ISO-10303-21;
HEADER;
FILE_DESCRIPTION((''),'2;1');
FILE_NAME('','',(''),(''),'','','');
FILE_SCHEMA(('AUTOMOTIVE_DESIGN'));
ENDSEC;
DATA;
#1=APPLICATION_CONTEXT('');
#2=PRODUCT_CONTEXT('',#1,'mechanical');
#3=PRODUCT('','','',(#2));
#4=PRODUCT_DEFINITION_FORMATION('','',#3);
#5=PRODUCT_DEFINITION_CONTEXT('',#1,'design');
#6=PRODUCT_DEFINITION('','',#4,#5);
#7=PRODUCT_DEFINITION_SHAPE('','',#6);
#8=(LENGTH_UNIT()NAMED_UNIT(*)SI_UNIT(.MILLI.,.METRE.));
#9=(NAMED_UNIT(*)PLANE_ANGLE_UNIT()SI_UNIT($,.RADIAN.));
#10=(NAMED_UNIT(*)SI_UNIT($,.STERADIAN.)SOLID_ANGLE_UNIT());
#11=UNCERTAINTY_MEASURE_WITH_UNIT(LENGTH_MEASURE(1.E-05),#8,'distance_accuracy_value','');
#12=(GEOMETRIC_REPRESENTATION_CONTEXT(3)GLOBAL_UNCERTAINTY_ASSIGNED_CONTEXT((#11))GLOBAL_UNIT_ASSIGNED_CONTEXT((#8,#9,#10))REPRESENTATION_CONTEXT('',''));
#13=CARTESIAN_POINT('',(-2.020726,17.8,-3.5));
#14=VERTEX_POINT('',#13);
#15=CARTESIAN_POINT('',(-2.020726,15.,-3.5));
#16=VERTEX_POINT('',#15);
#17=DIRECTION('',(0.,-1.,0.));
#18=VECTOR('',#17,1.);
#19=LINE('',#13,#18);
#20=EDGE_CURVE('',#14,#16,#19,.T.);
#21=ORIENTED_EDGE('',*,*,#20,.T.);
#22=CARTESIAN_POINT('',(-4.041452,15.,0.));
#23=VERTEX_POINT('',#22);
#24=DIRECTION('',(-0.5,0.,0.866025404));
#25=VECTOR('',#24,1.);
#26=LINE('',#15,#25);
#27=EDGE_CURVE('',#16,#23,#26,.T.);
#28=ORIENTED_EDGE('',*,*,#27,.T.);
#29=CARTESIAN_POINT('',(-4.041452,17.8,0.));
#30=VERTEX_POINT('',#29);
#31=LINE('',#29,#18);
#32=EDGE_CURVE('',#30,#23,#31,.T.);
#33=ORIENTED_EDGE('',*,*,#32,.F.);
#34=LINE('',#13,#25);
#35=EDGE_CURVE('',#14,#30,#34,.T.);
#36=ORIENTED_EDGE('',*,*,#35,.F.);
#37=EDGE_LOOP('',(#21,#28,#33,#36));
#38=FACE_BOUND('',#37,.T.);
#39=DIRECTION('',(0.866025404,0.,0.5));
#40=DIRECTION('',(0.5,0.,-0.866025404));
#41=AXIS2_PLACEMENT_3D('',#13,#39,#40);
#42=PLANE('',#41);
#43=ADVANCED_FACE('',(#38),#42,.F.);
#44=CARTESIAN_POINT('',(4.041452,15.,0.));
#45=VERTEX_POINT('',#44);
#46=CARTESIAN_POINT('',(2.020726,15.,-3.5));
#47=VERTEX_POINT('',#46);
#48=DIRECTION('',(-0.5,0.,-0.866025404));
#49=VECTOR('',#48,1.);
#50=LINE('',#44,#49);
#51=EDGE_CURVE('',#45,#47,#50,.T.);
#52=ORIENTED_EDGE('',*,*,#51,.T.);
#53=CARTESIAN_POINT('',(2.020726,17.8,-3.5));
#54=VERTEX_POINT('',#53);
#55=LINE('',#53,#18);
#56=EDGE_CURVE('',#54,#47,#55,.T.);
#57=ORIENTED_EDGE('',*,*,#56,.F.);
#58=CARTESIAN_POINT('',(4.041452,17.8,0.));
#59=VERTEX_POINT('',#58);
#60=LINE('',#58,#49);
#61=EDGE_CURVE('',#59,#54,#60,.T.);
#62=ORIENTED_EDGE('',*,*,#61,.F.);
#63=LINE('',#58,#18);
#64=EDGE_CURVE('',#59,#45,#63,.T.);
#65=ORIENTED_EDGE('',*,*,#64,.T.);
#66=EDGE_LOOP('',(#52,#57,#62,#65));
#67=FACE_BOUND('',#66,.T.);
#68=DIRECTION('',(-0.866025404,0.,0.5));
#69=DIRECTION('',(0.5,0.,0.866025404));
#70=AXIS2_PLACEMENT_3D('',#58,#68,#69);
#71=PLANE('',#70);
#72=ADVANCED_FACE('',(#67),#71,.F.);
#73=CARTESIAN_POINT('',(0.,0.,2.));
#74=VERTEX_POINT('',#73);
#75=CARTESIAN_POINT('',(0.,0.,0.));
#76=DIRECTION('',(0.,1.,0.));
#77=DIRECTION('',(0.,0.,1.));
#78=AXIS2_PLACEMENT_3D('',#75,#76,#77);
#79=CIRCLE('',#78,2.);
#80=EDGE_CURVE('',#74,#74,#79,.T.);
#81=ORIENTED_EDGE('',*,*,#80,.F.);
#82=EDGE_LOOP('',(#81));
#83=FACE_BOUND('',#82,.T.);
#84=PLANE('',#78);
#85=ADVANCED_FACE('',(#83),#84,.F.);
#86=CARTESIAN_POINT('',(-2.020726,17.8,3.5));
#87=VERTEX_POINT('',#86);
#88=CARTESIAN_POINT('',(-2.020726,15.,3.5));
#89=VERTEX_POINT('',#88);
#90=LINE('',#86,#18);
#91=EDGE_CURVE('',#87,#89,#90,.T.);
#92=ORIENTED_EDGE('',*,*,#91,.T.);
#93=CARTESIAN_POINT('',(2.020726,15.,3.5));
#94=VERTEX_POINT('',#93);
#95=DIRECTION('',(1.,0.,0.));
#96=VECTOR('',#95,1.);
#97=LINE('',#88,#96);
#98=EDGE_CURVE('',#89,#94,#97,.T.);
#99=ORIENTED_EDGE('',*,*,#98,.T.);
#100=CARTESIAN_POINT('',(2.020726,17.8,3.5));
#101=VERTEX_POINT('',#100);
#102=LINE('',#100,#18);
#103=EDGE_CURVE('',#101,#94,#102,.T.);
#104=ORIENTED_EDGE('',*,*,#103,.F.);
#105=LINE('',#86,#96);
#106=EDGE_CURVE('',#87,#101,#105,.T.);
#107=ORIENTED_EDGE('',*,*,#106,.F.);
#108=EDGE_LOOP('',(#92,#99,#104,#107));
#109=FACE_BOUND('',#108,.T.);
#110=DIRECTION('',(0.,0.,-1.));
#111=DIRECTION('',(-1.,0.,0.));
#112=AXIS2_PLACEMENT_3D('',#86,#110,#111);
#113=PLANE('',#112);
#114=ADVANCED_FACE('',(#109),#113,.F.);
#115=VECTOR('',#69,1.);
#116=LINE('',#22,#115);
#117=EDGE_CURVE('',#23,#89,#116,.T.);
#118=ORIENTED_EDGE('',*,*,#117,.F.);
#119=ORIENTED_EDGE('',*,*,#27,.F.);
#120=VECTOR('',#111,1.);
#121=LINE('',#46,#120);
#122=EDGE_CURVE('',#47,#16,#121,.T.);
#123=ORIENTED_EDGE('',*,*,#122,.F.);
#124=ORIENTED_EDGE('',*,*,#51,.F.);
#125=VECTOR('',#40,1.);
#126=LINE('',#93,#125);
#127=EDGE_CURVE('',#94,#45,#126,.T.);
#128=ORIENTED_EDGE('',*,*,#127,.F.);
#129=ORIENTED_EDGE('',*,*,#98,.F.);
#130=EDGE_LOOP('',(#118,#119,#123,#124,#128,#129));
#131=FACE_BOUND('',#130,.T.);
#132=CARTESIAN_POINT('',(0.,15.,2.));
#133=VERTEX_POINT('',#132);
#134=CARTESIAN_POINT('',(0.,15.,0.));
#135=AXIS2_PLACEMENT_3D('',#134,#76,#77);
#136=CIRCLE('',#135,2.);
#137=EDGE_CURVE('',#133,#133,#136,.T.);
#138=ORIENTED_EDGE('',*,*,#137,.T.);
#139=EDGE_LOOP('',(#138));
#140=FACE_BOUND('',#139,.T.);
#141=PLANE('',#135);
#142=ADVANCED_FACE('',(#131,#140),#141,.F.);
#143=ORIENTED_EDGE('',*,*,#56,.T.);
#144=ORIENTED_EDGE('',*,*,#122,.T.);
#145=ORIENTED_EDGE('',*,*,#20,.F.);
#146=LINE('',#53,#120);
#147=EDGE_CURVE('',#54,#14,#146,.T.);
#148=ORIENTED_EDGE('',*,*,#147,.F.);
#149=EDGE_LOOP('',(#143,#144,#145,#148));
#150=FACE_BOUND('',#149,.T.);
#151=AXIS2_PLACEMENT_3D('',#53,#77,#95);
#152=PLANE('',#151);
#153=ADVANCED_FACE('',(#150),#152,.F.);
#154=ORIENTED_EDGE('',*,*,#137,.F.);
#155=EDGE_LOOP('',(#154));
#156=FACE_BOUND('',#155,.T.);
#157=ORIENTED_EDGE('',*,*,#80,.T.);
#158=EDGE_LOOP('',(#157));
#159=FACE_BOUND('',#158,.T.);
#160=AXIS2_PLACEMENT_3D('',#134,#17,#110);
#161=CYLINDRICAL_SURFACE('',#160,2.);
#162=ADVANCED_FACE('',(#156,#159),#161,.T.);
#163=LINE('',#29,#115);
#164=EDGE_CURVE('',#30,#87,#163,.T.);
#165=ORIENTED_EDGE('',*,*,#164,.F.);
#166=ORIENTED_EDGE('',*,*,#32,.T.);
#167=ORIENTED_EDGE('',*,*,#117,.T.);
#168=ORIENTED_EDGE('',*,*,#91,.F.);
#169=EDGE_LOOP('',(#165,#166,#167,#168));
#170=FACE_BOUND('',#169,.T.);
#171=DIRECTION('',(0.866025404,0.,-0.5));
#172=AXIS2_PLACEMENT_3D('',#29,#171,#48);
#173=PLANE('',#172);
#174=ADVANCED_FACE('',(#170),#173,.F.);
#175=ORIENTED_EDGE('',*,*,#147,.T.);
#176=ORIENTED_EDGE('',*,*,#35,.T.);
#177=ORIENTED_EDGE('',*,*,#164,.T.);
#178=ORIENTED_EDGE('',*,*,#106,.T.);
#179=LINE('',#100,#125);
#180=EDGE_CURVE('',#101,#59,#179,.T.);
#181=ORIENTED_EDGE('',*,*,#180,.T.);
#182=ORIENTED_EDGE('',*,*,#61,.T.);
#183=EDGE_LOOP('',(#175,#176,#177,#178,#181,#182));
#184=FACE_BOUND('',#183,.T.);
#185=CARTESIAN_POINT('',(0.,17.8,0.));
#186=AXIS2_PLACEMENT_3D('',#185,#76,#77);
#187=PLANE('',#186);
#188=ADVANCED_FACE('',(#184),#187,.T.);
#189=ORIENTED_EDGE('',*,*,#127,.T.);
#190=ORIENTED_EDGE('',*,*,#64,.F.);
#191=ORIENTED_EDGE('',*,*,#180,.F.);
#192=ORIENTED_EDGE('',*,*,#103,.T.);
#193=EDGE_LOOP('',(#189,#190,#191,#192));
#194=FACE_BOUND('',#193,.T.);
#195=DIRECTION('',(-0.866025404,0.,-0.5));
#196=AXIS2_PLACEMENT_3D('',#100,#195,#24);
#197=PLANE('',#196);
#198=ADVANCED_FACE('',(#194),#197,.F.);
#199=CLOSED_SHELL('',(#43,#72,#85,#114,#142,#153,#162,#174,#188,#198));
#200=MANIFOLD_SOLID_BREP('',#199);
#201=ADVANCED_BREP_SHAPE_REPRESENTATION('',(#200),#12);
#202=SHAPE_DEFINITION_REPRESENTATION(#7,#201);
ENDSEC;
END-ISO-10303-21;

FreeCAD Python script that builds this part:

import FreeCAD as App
import Part
import Sketcher
Q = App.Units.Quantity

doc = App.newDocument("Part")
body = doc.addObject("PartDesign::Body", "Body")

# Sketch on XZ plane
sketch1 = doc.addObject("Sketcher::SketchObject", "Sketch")
body.addObject(sketch1)
sketch1.AttachmentSupport = (doc.XZ_Plane, [""])
sketch1.MapMode = "FlatFace"
sketch1.addGeometry(Part.Circle(App.Vector(0, 0, 0), App.Vector(0, 0, 1), 2), False)
sketch1.addConstraint(Sketcher.Constraint("Coincident", 0, 3, -1, 1))
sketch1.addConstraint(Sketcher.Constraint("Diameter", 0, Q("4 mm")))
pad1 = doc.addObject("PartDesign::Pad", "Pad")
body.addObject(pad1)
pad1.Profile = sketch1
pad1.Length = 15
pad1.Reversed = True

# Sketch on XZ plane
sketch2 = doc.addObject("Sketcher::SketchObject", "Sketch001")
body.addObject(sketch2)
sketch2.AttachmentSupport = (doc.XZ_Plane, [""])
sketch2.MapMode = "FlatFace"
sketch2.AttachmentOffset = App.Placement(App.Vector(0, 0, -15), App.Rotation())
sketch2.addGeometry(Part.LineSegment(App.Vector(4.041452, 0, 0), App.Vector(2.020726, -3.5, 0)), False)
sketch2.addGeometry(Part.LineSegment(App.Vector(2.020726, -3.5, 0), App.Vector(-2.020726, -3.5, 0)), False)
sketch2.addGeometry(Part.LineSegment(App.Vector(-2.020726, -3.5, 0), App.Vector(-4.041452, 0, 0)), False)
sketch2.addGeometry(Part.LineSegment(App.Vector(-4.041452, 0, 0), App.Vector(-2.020726, 3.5, 0)), False)
sketch2.addGeometry(Part.LineSegment(App.Vector(-2.020726, 3.5, 0), App.Vector(2.020726, 3.5, 0)), False)
sketch2.addGeometry(Part.LineSegment(App.Vector(2.020726, 3.5, 0), App.Vector(4.041452, 0, 0)), False)
sketch2.addConstraint(Sketcher.Constraint("Coincident", 0, 2, 1, 1))
sketch2.addConstraint(Sketcher.Constraint("Coincident", 1, 2, 2, 1))
sketch2.addConstraint(Sketcher.Constraint("Coincident", 2, 2, 3, 1))
sketch2.addConstraint(Sketcher.Constraint("Coincident", 3, 2, 4, 1))
sketch2.addConstraint(Sketcher.Constraint("Coincident", 4, 2, 5, 1))
sketch2.addConstraint(Sketcher.Constraint("Coincident", 5, 2, 0, 1))
sketch2.addConstraint(Sketcher.Constraint("Horizontal", 1))
sketch2.addConstraint(Sketcher.Constraint("Horizontal", 4))
sketch2.addConstraint(Sketcher.Constraint("Symmetric", 0, 2, 3, 2, -1, 1))
sketch2.addConstraint(Sketcher.Constraint("Symmetric", 2, 2, 5, 2, -1, 1))
sketch2.addConstraint(Sketcher.Constraint("PointOnObject", 2, 2, -1))
sketch2.addConstraint(Sketcher.Constraint("Parallel", 2, 5))
sketch2.addConstraint(Sketcher.Constraint("Vertical", 1, 2, 3, 2))
sketch2.addConstraint(Sketcher.Constraint("Angle", 0, Q("-120 deg")))
sketch2.addConstraint(Sketcher.Constraint("DistanceY", 1, 2, 3, 2, Q("7 mm")))
sketch2.addConstraint(Sketcher.Constraint("DistanceX", 1, 2, 1, 1, Q("4.041452 mm")))
pad2 = doc.addObject("PartDesign::Pad", "Pad001")
body.addObject(pad2)
pad2.Profile = sketch2
pad2.Length = 2.8
pad2.Reversed = True

doc.recompute()
